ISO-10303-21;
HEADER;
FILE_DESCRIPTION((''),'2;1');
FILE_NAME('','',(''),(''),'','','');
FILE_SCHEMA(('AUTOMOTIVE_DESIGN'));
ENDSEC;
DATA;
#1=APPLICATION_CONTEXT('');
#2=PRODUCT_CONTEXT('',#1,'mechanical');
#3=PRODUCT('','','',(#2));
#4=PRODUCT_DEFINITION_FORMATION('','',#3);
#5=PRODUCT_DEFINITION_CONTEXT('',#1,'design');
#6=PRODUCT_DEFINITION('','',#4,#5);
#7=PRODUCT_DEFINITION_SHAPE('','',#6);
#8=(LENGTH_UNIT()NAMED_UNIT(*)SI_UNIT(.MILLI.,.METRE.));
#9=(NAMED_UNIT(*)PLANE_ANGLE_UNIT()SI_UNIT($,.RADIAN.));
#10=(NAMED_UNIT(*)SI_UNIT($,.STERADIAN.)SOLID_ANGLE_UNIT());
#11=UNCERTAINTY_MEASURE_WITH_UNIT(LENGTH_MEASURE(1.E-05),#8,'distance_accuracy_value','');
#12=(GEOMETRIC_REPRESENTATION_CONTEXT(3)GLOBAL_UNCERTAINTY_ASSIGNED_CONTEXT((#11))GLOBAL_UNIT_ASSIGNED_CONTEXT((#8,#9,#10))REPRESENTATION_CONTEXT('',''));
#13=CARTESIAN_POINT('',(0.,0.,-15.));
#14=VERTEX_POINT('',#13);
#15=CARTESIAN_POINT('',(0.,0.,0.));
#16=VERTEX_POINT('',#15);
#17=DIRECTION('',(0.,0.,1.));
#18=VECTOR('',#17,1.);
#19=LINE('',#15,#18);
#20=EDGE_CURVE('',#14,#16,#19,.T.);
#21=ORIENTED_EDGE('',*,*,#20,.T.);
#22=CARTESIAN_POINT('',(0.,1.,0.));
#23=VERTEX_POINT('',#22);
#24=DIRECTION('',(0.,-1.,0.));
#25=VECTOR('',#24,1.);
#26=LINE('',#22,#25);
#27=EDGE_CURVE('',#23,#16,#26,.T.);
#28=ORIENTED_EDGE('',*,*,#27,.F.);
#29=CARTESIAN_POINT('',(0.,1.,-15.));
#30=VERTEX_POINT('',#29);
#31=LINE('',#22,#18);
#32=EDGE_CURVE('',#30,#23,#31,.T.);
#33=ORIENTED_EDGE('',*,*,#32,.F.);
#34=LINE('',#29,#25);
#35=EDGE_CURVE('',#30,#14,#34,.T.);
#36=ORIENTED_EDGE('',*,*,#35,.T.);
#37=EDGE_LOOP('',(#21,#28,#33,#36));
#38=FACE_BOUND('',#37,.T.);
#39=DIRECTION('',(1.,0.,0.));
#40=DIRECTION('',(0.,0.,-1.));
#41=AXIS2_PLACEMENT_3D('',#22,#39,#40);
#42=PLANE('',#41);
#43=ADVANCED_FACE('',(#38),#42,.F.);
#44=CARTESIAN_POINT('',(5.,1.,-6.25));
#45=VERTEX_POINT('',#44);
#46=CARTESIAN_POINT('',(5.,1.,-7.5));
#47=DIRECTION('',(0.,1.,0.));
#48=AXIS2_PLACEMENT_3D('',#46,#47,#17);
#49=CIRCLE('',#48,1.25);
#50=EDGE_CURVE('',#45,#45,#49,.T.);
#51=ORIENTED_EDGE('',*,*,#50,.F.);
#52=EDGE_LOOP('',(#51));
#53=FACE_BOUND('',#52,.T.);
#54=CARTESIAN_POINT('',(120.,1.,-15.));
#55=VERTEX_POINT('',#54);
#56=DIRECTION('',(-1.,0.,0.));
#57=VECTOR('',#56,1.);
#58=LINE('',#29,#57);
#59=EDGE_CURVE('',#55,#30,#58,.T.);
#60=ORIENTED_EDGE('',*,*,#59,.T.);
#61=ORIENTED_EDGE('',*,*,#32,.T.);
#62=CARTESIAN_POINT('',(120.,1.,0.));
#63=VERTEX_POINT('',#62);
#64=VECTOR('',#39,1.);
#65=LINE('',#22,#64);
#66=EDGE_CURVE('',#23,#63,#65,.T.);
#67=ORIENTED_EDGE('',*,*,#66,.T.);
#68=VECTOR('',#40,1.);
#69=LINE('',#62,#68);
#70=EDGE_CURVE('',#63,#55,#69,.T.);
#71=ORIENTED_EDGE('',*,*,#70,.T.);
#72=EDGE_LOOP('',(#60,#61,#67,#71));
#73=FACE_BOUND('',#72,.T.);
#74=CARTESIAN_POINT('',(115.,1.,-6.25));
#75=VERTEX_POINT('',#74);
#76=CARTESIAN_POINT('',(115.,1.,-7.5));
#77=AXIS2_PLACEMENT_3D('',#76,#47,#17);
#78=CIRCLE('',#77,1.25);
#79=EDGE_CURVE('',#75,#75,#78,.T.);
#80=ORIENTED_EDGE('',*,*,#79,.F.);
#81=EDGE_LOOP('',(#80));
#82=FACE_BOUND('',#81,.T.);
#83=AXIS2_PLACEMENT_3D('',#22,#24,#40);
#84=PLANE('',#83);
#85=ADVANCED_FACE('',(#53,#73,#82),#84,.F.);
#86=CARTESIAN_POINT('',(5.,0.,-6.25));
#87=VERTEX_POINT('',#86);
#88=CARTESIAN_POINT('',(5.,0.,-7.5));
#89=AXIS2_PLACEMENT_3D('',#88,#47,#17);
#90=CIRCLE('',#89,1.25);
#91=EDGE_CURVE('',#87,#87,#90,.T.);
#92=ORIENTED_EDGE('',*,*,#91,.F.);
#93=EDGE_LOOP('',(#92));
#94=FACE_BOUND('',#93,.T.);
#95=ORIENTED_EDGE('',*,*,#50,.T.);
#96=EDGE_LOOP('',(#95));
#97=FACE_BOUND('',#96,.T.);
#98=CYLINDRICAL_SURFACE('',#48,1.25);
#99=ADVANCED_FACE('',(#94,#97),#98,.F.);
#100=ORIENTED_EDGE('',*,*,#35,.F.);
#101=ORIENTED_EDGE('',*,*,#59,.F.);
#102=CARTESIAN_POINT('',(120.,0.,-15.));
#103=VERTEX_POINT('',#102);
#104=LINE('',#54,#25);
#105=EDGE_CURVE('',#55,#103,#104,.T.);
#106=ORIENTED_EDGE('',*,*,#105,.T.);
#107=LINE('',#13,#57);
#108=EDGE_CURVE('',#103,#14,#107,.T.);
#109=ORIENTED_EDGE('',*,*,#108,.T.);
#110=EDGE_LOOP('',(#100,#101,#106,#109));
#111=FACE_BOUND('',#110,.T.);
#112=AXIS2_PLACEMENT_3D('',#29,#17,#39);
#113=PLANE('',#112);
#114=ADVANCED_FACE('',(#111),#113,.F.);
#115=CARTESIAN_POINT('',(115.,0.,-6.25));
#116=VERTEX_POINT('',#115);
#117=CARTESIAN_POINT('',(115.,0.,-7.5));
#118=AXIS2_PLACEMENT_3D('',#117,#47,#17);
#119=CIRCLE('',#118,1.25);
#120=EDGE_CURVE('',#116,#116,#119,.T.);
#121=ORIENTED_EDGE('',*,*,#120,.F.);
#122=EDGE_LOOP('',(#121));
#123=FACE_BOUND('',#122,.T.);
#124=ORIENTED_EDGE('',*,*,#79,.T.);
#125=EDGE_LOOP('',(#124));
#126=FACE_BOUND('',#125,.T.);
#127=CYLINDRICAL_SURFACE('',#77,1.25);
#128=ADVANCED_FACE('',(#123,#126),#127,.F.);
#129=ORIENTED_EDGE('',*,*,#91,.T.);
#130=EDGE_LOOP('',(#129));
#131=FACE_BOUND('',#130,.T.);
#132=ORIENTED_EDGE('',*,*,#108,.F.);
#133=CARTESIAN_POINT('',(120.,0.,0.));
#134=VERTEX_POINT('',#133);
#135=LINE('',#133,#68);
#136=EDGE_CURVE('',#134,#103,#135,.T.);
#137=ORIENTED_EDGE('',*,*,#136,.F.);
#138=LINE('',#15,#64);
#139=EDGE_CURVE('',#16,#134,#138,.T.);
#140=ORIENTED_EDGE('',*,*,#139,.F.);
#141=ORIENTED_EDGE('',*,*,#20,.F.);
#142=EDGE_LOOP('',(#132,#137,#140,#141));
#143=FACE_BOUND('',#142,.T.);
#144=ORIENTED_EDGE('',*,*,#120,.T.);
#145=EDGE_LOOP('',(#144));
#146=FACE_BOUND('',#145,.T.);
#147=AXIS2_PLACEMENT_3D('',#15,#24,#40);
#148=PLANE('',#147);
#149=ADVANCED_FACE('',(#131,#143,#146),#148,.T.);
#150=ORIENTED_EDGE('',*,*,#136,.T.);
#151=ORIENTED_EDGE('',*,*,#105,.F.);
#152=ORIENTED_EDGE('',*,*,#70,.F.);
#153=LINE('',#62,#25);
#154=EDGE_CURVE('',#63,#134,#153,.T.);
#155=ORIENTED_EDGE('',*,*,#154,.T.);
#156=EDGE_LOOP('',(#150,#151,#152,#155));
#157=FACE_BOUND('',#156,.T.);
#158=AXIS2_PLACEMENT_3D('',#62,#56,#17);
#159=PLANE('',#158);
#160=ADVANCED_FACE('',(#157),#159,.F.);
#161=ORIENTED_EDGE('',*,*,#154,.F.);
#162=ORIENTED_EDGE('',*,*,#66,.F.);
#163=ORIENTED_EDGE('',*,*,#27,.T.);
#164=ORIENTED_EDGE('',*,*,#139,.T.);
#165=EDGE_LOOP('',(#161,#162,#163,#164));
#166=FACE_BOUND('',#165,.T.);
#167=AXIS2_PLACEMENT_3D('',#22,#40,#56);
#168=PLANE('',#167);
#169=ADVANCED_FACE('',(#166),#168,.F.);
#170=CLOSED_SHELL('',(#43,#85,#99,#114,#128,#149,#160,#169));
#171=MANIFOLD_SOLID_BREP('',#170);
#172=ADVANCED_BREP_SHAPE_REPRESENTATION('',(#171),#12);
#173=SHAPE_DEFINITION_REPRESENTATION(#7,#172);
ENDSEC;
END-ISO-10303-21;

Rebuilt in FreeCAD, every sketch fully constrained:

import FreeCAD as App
import Part
import Sketcher
Q = App.Units.Quantity


def add_polygon(sketch, points):
    """Adds a closed chain of lines whose ends are joined by coincident constraints."""
    first, n = sketch.GeometryCount, len(points)
    for a, b in zip(points, points[1:] + points[:1]):
        sketch.addGeometry(Part.LineSegment(App.Vector(*a, 0), App.Vector(*b, 0)), False)
    for i in range(n):
        sketch.addConstraint(Sketcher.Constraint("Coincident", first + i, 2, first + (i + 1) % n, 1))

doc = App.newDocument("Part")
body = doc.addObject("PartDesign::Body", "Body")

# Sketch on XZ plane
sketch1 = doc.addObject("Sketcher::SketchObject", "Sketch")
body.addObject(sketch1)
sketch1.AttachmentSupport = (doc.XZ_Plane, [""])
sketch1.MapMode = "FlatFace"
add_polygon(sketch1, [(0, -15), (0, 0), (120, 0), (120, -15)])  # lines 0-3
sketch1.addConstraint([
    Sketcher.Constraint("Vertical", 0),
    Sketcher.Constraint("Horizontal", 1),
    Sketcher.Constraint("Vertical", 2),
    Sketcher.Constraint("Horizontal", 3),
    Sketcher.Constraint("Coincident", 0, 2, -1, 1),
    Sketcher.Constraint("DistanceX", 1, 1, 1, 2, Q("120 mm")),
    Sketcher.Constraint("DistanceY", 0, 1, 0, 2, Q("15 mm")),
])
pad1 = doc.addObject("PartDesign::Pad", "Pad")
body.addObject(pad1)
pad1.Profile = sketch1
pad1.Length = 1
pad1.Reversed = True

# Sketch on XZ plane
sketch2 = doc.addObject("Sketcher::SketchObject", "Sketch001")
body.addObject(sketch2)
sketch2.AttachmentSupport = (doc.XZ_Plane, [""])
sketch2.MapMode = "FlatFace"
sketch2.AttachmentOffset = App.Placement(App.Vector(0, 0, -1), App.Rotation())
sketch2.addGeometry([
    Part.Circle(App.Vector(5, -7.5, 0), App.Vector(0, 0, 1), 1.2),
    Part.Circle(App.Vector(115, -7.5, 0), App.Vector(0, 0, 1), 1.2),
], False)
sketch2.addConstraint([
    Sketcher.Constraint("Equal", 0, 1),
    Sketcher.Constraint("Horizontal", 0, 3, 1, 3),
    Sketcher.Constraint("Diameter", 0, Q("2.5 mm")),
    Sketcher.Constraint("DistanceX", -1, 1, 0, 3, Q("5 mm")),
    Sketcher.Constraint("DistanceX", -1, 1, 1, 3, Q("115 mm")),
    Sketcher.Constraint("DistanceY", 0, 3, -1, 1, Q("7.5 mm")),
])
doc.recompute()
hole = doc.addObject("PartDesign::Hole", "Hole")
body.addObject(hole)
hole.Profile = sketch2
hole.ThreadType = "None"
hole.Diameter = 2.5
hole.DepthType = "ThroughAll"
hole.Reversed = True

doc.recompute()
